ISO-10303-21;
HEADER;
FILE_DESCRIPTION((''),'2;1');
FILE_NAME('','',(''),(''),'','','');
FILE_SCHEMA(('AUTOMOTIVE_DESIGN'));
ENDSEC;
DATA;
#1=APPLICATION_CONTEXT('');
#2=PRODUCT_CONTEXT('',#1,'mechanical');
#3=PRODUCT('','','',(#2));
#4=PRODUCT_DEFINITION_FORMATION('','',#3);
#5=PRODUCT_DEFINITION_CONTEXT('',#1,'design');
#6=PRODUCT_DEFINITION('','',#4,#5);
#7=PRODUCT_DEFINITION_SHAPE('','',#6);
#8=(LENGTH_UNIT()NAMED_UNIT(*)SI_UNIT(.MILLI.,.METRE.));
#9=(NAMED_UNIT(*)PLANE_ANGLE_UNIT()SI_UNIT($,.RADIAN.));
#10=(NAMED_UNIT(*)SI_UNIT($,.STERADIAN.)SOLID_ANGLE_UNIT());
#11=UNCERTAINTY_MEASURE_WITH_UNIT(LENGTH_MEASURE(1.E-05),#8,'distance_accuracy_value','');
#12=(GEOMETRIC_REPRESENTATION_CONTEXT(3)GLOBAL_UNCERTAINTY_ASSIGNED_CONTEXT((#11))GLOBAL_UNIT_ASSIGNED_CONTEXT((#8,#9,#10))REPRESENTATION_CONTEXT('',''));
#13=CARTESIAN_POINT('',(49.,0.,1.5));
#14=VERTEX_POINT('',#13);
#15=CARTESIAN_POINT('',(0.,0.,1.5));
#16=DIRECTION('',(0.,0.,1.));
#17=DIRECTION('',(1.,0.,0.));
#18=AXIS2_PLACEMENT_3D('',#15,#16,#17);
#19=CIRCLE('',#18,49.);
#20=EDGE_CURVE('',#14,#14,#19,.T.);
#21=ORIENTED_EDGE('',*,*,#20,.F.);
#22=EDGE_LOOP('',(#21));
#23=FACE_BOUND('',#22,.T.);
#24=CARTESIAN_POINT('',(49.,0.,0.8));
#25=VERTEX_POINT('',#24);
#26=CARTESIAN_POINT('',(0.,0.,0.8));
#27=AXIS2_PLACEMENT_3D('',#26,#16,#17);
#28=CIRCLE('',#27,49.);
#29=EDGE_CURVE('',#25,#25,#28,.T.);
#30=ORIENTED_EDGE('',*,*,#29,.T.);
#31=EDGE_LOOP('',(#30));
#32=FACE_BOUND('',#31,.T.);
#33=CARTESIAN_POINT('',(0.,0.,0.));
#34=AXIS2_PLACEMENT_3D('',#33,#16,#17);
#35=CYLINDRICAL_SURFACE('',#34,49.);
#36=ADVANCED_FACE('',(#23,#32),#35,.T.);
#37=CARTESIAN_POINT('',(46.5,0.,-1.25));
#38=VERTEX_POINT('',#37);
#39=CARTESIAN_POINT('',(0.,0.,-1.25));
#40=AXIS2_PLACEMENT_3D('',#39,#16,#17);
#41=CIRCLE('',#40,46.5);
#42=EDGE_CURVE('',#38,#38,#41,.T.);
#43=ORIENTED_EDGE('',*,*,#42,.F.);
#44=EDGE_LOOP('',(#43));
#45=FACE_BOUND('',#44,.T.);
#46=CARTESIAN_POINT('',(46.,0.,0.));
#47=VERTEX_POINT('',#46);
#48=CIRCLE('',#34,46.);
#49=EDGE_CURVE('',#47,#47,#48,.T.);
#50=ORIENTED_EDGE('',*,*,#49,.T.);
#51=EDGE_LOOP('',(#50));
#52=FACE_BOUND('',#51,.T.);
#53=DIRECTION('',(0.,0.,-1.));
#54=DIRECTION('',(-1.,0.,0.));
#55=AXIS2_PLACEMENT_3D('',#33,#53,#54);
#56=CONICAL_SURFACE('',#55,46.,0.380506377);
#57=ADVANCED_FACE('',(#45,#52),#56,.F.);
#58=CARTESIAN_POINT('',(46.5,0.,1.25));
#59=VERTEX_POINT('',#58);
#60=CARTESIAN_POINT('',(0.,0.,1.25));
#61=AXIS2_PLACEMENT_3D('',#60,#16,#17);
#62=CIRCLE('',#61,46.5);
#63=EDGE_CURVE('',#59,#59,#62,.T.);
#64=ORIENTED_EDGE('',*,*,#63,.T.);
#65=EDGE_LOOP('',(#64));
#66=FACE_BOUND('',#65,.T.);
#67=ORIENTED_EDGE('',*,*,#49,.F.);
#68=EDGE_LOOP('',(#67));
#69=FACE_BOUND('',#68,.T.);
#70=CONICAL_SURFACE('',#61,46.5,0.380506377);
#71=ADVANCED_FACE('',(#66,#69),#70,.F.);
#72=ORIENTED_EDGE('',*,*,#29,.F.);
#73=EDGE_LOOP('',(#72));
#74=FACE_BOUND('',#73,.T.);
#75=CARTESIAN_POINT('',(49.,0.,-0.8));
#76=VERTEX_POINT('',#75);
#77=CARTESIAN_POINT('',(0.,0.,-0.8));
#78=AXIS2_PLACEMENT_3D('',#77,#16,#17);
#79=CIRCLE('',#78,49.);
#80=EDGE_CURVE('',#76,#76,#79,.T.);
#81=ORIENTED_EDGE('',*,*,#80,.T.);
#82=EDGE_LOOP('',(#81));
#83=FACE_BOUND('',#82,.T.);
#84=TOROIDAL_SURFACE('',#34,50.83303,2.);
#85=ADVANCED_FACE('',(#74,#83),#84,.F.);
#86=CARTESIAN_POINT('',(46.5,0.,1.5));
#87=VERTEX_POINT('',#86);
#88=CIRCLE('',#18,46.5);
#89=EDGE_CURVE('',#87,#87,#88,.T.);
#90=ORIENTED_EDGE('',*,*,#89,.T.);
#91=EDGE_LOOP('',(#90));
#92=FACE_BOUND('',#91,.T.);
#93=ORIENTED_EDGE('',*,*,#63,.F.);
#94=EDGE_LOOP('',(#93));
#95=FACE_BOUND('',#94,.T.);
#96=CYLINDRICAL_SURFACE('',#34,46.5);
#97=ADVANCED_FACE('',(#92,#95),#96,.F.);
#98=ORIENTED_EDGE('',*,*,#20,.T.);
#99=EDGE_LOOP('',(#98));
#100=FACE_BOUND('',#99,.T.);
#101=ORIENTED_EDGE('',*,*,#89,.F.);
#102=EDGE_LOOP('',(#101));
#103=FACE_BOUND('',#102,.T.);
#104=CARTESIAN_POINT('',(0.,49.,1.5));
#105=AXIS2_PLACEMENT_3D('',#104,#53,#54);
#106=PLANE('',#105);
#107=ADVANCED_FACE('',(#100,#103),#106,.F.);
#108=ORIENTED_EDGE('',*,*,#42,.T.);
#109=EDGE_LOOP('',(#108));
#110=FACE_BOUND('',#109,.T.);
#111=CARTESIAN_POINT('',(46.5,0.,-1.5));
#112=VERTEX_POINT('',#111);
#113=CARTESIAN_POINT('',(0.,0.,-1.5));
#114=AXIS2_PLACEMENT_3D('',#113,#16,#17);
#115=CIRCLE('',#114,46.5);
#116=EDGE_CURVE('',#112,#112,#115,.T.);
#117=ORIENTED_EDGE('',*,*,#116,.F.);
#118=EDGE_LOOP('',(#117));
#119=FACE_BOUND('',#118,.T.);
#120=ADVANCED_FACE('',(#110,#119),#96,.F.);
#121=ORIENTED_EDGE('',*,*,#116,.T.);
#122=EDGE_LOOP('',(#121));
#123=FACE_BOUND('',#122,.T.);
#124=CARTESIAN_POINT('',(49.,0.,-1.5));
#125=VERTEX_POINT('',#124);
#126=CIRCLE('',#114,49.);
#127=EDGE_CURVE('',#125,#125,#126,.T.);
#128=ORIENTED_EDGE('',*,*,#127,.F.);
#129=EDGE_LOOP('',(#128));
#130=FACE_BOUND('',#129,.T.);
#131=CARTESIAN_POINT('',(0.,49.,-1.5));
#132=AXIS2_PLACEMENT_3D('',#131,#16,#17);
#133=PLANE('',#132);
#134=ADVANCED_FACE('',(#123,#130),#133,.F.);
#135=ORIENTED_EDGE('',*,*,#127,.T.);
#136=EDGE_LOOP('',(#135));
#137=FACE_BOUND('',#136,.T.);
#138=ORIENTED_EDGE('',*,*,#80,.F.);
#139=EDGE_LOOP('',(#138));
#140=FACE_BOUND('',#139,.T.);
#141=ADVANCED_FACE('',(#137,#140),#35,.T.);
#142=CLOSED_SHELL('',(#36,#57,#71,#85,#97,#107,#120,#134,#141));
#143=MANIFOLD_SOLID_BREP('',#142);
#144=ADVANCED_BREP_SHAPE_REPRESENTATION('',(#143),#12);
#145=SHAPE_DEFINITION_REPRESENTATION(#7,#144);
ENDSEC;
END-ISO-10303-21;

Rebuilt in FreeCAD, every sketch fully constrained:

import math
import FreeCAD as App
import Part
import Sketcher
from FreeCAD import Vector
Q = App.Units.Quantity

doc = App.newDocument("Part")
params = doc.addObject("Spreadsheet::Sheet", "Params")
for row, (alias, value) in enumerate([
    ("sketch1_radius", "2 mm"),
    ("sketch1_width", "2.5 mm"),
    ("sketch1_height", "0.7 mm"),
    ("sketch1_height2", "0.25 mm"),
    ("revolution_angle", "360 deg"),
], start=1):
    params.set(f"A{row}", alias)
    params.set(f"B{row}", "=" + value)
    params.setAlias(f"B{row}", alias)

body = doc.addObject("PartDesign::Body", "Body")

# Sketch on YZ plane
sketch1 = body.newObject("Sketcher::SketchObject", "Sketch")
sketch1.AttachmentSupport = (doc.getObject("YZ_Plane"), [""])
sketch1.MapMode = "FlatFace"
sketch1.addGeometry([
    Part.LineSegment(Vector(49, -1.5, 0), Vector(49, -0.8, 0)),  # 0
    Part.ArcOfCircle(Part.Circle(Vector(50.83303, 0, 0), Vector(0, 0, 1), 2), math.radians(156.421822), math.radians(203.578178)),  # 1
    Part.LineSegment(Vector(49, 0.8, 0), Vector(49, 1.5, 0)),  # 2
    Part.LineSegment(Vector(49, 1.5, 0), Vector(46.5, 1.5, 0)),  # 3
    Part.LineSegment(Vector(46.5, 1.5, 0), Vector(46.5, 1.25, 0)),  # 4
    Part.LineSegment(Vector(46.5, 1.25, 0), Vector(46, 0, 0)),  # 5
    Part.LineSegment(Vector(46, 0, 0), Vector(46.5, -1.25, 0)),  # 6
    Part.LineSegment(Vector(46.5, -1.25, 0), Vector(46.5, -1.5, 0)),  # 7
    Part.LineSegment(Vector(46.5, -1.5, 0), Vector(49, -1.5, 0)),  # 8
], False)
sketch1.addConstraint([
    Sketcher.Constraint("Coincident", 0, 2, 1, 2),
    Sketcher.Constraint("Coincident", 1, 1, 2, 1),
    Sketcher.Constraint("Coincident", 2, 2, 3, 1),
    Sketcher.Constraint("Coincident", 3, 2, 4, 1),
    Sketcher.Constraint("Coincident", 4, 2, 5, 1),
    Sketcher.Constraint("Coincident", 5, 2, 6, 1),
    Sketcher.Constraint("Coincident", 6, 2, 7, 1),
    Sketcher.Constraint("Coincident", 7, 2, 8, 1),
    Sketcher.Constraint("Coincident", 8, 2, 0, 1),
    Sketcher.Constraint("Vertical", 0),
    Sketcher.Constraint("Vertical", 2),
    Sketcher.Constraint("Horizontal", 3),
    Sketcher.Constraint("Vertical", 4),
    Sketcher.Constraint("Vertical", 7),
    Sketcher.Constraint("Horizontal", 8),
    Sketcher.Constraint("Symmetric", 0, 2, 1, 1, -1),
    Sketcher.Constraint("Symmetric", 4, 2, 6, 2, -1),
    Sketcher.Constraint("PointOnObject", 5, 2, -1),
    Sketcher.Constraint("Equal", 0, 2),
    Sketcher.Constraint("Radius", 1, Q("2 mm")),
    Sketcher.Constraint("DistanceX", 3, 2, 3, 1, Q("2.5 mm")),
    Sketcher.Constraint("DistanceY", 0, 1, 0, 2, Q("0.7 mm")),
    Sketcher.Constraint("DistanceX", -1, 1, 0, 2, Q("49 mm")),
    Sketcher.Constraint("DistanceX", -1, 1, 5, 2, Q("46 mm")),
    Sketcher.Constraint("DistanceY", 7, 2, 3, 2, Q("3 mm")),
    Sketcher.Constraint("DistanceY", 4, 2, 4, 1, Q("0.25 mm")),
])
sketch1.setExpression("Constraints[19]", "Params.sketch1_radius")
sketch1.setExpression("Constraints[20]", "Params.sketch1_width")
sketch1.setExpression("Constraints[21]", "Params.sketch1_height")
sketch1.setExpression("Constraints[25]", "Params.sketch1_height2")
revolution = body.newObject("PartDesign::Revolution", "Revolution")
revolution.Profile = sketch1
revolution.ReferenceAxis = (sketch1, ["V_Axis"])
revolution.setExpression("Angle", "Params.revolution_angle")

doc.recompute()
